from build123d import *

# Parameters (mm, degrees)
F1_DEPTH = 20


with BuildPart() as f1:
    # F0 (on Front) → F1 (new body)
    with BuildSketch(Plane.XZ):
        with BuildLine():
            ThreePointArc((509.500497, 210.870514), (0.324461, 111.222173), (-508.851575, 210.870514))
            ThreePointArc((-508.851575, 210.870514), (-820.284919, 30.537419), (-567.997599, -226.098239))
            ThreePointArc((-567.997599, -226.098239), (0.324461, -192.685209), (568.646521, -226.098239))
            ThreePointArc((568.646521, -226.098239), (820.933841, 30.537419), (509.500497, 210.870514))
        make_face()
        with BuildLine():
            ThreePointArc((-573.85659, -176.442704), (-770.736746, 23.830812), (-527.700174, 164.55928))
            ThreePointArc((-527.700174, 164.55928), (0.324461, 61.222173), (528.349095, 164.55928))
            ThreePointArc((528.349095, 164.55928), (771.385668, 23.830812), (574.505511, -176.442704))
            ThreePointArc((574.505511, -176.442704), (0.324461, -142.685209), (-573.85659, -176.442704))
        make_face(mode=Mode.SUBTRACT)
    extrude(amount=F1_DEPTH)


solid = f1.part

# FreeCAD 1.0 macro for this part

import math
import FreeCAD as App
import Part
import Sketcher

doc = App.newDocument("Part")
body = doc.addObject("PartDesign::Body", "Body")

sketch1 = body.newObject("Sketcher::SketchObject", "Sketch")
sketch1.AttachmentSupport = (doc.getObject("XZ_Plane"), [""])
sketch1.MapMode = "FlatFace"
sketch1.addGeometry([
    Part.ArcOfCircle(Part.Circle(App.Vector(0, 1462, 0), App.Vector(0, 0, 1), 1351), math.radians(-112), math.radians(-68)),
    Part.ArcOfCircle(Part.Circle(App.Vector(-595, 0, 0), App.Vector(0, 0, 1), 228), math.radians(68), math.radians(277)),
    Part.ArcOfCircle(Part.Circle(App.Vector(0, -5043, 0), App.Vector(0, 0, 1), 4850), math.radians(83.27), math.radians(96.73)),
    Part.ArcOfCircle(Part.Circle(App.Vector(595, 0, 0), App.Vector(0, 0, 1), 228), math.radians(-97), math.radians(112)),
    Part.ArcOfCircle(Part.Circle(App.Vector(0, -5043, 0), App.Vector(0, 0, 1), 4900), math.radians(83.27), math.radians(96.73)),
    Part.ArcOfCircle(Part.Circle(App.Vector(-595, 0, 0), App.Vector(0, 0, 1), 178), math.radians(68), math.radians(277)),
    Part.ArcOfCircle(Part.Circle(App.Vector(0, 1462, 0), App.Vector(0, 0, 1), 1401), math.radians(-112), math.radians(-68)),
    Part.ArcOfCircle(Part.Circle(App.Vector(595, 0, 0), App.Vector(0, 0, 1), 178), math.radians(-97), math.radians(112)),
], False)
sketch1.addConstraint([
    Sketcher.Constraint("Tangent", 0, 1, 1, 1),
    Sketcher.Constraint("Tangent", 1, 2, 2, 2),
    Sketcher.Constraint("Tangent", 2, 1, 3, 1),
    Sketcher.Constraint("Tangent", 3, 2, 0, 2),
    Sketcher.Constraint("Tangent", 4, 2, 5, 2),
    Sketcher.Constraint("Tangent", 5, 1, 6, 1),
    Sketcher.Constraint("Tangent", 6, 2, 7, 2),
    Sketcher.Constraint("Tangent", 7, 1, 4, 1),
    Sketcher.Constraint("Coincident", 5, 3, 1, 3),
    Sketcher.Constraint("Coincident", 6, 3, 0, 3),
    Sketcher.Constraint("Coincident", 7, 3, 3, 3),
    Sketcher.Constraint("Equal", 1, 3),
    Sketcher.Constraint("PointOnObject", 1, 3, -1),
    Sketcher.Constraint("PointOnObject", 3, 3, -1),
    Sketcher.Constraint("DistanceX", 1, 3, 0, 3, 595.0),
    Sketcher.Constraint("Radius", 1, 227.6667),
    Sketcher.Constraint("Radius", 5, 177.6667),
    Sketcher.Constraint("Radius", 2, 4850.000052),
    Sketcher.Constraint("Radius", 0, 1350.699996),
    Sketcher.Constraint("Radius", 4, 4899.999944),
    Sketcher.Constraint("DistanceX", -1, 1, 0, 3, 0.324461),
])
pad1 = body.newObject("PartDesign::Pad", "Pad")
pad1.Profile = sketch1
pad1.Length = 20

doc.recompute()
